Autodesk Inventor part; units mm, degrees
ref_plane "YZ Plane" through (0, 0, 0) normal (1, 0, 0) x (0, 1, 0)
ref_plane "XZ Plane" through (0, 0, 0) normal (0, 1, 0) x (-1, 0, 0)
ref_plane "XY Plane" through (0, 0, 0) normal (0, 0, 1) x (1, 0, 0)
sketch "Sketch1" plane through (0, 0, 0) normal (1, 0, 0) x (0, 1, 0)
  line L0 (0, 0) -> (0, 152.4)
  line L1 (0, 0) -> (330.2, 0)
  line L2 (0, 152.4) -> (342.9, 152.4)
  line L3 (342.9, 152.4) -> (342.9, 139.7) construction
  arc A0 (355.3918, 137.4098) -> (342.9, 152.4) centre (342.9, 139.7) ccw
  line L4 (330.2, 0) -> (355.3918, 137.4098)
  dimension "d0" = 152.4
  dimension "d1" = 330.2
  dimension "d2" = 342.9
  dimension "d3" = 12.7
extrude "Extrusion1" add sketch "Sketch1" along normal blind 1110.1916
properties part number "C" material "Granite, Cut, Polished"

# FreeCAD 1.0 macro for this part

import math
import FreeCAD as App
import Part
import Sketcher
from FreeCAD import Vector
Q = App.Units.Quantity

doc = App.newDocument("Part")
body = doc.addObject("PartDesign::Body", "Body")

# Sketch on YZ plane
sketch1 = body.newObject("Sketcher::SketchObject", "Sketch")
sketch1.AttachmentSupport = (doc.getObject("YZ_Plane"), [""])
sketch1.MapMode = "FlatFace"
sketch1.addGeometry([
    Part.LineSegment(Vector(0, 152, 0), Vector(0, 0, 0)),  # 0
    Part.LineSegment(Vector(0, 0, 0), Vector(330, 0, 0)),  # 1
    Part.LineSegment(Vector(330, 0, 0), Vector(355, 137, 0)),  # 2
    Part.ArcOfCircle(Part.Circle(Vector(343, 140, 0), Vector(0, 0, 1), 13), math.radians(-10), math.radians(90)),  # 3
    Part.LineSegment(Vector(343, 152, 0), Vector(0, 152, 0)),  # 4
], False)
sketch1.addConstraint([
    Sketcher.Constraint("Coincident", 0, 2, 1, 1),
    Sketcher.Constraint("Coincident", 1, 2, 2, 1),
    Sketcher.Constraint("Tangent", 2, 2, 3, 1),
    Sketcher.Constraint("Tangent", 3, 2, 4, 1),
    Sketcher.Constraint("Coincident", 4, 2, 0, 1),
    Sketcher.Constraint("Vertical", 0),
    Sketcher.Constraint("Horizontal", 1),
    Sketcher.Constraint("Horizontal", 4),
    Sketcher.Constraint("Coincident", 0, 2, -1, 1),
    Sketcher.Constraint("Radius", 3, Q("0.5 in")),
    Sketcher.Constraint("DistanceX", 1, 1, 1, 2, Q("13 in")),
    Sketcher.Constraint("DistanceY", 0, 2, 0, 1, Q("6 in")),
    Sketcher.Constraint("DistanceX", 4, 2, 4, 1, Q("13.5 in")),
])
pad1 = body.newObject("PartDesign::Pad", "Pad")
pad1.Profile = sketch1
pad1.Length = 1110.1916

doc.recompute()
